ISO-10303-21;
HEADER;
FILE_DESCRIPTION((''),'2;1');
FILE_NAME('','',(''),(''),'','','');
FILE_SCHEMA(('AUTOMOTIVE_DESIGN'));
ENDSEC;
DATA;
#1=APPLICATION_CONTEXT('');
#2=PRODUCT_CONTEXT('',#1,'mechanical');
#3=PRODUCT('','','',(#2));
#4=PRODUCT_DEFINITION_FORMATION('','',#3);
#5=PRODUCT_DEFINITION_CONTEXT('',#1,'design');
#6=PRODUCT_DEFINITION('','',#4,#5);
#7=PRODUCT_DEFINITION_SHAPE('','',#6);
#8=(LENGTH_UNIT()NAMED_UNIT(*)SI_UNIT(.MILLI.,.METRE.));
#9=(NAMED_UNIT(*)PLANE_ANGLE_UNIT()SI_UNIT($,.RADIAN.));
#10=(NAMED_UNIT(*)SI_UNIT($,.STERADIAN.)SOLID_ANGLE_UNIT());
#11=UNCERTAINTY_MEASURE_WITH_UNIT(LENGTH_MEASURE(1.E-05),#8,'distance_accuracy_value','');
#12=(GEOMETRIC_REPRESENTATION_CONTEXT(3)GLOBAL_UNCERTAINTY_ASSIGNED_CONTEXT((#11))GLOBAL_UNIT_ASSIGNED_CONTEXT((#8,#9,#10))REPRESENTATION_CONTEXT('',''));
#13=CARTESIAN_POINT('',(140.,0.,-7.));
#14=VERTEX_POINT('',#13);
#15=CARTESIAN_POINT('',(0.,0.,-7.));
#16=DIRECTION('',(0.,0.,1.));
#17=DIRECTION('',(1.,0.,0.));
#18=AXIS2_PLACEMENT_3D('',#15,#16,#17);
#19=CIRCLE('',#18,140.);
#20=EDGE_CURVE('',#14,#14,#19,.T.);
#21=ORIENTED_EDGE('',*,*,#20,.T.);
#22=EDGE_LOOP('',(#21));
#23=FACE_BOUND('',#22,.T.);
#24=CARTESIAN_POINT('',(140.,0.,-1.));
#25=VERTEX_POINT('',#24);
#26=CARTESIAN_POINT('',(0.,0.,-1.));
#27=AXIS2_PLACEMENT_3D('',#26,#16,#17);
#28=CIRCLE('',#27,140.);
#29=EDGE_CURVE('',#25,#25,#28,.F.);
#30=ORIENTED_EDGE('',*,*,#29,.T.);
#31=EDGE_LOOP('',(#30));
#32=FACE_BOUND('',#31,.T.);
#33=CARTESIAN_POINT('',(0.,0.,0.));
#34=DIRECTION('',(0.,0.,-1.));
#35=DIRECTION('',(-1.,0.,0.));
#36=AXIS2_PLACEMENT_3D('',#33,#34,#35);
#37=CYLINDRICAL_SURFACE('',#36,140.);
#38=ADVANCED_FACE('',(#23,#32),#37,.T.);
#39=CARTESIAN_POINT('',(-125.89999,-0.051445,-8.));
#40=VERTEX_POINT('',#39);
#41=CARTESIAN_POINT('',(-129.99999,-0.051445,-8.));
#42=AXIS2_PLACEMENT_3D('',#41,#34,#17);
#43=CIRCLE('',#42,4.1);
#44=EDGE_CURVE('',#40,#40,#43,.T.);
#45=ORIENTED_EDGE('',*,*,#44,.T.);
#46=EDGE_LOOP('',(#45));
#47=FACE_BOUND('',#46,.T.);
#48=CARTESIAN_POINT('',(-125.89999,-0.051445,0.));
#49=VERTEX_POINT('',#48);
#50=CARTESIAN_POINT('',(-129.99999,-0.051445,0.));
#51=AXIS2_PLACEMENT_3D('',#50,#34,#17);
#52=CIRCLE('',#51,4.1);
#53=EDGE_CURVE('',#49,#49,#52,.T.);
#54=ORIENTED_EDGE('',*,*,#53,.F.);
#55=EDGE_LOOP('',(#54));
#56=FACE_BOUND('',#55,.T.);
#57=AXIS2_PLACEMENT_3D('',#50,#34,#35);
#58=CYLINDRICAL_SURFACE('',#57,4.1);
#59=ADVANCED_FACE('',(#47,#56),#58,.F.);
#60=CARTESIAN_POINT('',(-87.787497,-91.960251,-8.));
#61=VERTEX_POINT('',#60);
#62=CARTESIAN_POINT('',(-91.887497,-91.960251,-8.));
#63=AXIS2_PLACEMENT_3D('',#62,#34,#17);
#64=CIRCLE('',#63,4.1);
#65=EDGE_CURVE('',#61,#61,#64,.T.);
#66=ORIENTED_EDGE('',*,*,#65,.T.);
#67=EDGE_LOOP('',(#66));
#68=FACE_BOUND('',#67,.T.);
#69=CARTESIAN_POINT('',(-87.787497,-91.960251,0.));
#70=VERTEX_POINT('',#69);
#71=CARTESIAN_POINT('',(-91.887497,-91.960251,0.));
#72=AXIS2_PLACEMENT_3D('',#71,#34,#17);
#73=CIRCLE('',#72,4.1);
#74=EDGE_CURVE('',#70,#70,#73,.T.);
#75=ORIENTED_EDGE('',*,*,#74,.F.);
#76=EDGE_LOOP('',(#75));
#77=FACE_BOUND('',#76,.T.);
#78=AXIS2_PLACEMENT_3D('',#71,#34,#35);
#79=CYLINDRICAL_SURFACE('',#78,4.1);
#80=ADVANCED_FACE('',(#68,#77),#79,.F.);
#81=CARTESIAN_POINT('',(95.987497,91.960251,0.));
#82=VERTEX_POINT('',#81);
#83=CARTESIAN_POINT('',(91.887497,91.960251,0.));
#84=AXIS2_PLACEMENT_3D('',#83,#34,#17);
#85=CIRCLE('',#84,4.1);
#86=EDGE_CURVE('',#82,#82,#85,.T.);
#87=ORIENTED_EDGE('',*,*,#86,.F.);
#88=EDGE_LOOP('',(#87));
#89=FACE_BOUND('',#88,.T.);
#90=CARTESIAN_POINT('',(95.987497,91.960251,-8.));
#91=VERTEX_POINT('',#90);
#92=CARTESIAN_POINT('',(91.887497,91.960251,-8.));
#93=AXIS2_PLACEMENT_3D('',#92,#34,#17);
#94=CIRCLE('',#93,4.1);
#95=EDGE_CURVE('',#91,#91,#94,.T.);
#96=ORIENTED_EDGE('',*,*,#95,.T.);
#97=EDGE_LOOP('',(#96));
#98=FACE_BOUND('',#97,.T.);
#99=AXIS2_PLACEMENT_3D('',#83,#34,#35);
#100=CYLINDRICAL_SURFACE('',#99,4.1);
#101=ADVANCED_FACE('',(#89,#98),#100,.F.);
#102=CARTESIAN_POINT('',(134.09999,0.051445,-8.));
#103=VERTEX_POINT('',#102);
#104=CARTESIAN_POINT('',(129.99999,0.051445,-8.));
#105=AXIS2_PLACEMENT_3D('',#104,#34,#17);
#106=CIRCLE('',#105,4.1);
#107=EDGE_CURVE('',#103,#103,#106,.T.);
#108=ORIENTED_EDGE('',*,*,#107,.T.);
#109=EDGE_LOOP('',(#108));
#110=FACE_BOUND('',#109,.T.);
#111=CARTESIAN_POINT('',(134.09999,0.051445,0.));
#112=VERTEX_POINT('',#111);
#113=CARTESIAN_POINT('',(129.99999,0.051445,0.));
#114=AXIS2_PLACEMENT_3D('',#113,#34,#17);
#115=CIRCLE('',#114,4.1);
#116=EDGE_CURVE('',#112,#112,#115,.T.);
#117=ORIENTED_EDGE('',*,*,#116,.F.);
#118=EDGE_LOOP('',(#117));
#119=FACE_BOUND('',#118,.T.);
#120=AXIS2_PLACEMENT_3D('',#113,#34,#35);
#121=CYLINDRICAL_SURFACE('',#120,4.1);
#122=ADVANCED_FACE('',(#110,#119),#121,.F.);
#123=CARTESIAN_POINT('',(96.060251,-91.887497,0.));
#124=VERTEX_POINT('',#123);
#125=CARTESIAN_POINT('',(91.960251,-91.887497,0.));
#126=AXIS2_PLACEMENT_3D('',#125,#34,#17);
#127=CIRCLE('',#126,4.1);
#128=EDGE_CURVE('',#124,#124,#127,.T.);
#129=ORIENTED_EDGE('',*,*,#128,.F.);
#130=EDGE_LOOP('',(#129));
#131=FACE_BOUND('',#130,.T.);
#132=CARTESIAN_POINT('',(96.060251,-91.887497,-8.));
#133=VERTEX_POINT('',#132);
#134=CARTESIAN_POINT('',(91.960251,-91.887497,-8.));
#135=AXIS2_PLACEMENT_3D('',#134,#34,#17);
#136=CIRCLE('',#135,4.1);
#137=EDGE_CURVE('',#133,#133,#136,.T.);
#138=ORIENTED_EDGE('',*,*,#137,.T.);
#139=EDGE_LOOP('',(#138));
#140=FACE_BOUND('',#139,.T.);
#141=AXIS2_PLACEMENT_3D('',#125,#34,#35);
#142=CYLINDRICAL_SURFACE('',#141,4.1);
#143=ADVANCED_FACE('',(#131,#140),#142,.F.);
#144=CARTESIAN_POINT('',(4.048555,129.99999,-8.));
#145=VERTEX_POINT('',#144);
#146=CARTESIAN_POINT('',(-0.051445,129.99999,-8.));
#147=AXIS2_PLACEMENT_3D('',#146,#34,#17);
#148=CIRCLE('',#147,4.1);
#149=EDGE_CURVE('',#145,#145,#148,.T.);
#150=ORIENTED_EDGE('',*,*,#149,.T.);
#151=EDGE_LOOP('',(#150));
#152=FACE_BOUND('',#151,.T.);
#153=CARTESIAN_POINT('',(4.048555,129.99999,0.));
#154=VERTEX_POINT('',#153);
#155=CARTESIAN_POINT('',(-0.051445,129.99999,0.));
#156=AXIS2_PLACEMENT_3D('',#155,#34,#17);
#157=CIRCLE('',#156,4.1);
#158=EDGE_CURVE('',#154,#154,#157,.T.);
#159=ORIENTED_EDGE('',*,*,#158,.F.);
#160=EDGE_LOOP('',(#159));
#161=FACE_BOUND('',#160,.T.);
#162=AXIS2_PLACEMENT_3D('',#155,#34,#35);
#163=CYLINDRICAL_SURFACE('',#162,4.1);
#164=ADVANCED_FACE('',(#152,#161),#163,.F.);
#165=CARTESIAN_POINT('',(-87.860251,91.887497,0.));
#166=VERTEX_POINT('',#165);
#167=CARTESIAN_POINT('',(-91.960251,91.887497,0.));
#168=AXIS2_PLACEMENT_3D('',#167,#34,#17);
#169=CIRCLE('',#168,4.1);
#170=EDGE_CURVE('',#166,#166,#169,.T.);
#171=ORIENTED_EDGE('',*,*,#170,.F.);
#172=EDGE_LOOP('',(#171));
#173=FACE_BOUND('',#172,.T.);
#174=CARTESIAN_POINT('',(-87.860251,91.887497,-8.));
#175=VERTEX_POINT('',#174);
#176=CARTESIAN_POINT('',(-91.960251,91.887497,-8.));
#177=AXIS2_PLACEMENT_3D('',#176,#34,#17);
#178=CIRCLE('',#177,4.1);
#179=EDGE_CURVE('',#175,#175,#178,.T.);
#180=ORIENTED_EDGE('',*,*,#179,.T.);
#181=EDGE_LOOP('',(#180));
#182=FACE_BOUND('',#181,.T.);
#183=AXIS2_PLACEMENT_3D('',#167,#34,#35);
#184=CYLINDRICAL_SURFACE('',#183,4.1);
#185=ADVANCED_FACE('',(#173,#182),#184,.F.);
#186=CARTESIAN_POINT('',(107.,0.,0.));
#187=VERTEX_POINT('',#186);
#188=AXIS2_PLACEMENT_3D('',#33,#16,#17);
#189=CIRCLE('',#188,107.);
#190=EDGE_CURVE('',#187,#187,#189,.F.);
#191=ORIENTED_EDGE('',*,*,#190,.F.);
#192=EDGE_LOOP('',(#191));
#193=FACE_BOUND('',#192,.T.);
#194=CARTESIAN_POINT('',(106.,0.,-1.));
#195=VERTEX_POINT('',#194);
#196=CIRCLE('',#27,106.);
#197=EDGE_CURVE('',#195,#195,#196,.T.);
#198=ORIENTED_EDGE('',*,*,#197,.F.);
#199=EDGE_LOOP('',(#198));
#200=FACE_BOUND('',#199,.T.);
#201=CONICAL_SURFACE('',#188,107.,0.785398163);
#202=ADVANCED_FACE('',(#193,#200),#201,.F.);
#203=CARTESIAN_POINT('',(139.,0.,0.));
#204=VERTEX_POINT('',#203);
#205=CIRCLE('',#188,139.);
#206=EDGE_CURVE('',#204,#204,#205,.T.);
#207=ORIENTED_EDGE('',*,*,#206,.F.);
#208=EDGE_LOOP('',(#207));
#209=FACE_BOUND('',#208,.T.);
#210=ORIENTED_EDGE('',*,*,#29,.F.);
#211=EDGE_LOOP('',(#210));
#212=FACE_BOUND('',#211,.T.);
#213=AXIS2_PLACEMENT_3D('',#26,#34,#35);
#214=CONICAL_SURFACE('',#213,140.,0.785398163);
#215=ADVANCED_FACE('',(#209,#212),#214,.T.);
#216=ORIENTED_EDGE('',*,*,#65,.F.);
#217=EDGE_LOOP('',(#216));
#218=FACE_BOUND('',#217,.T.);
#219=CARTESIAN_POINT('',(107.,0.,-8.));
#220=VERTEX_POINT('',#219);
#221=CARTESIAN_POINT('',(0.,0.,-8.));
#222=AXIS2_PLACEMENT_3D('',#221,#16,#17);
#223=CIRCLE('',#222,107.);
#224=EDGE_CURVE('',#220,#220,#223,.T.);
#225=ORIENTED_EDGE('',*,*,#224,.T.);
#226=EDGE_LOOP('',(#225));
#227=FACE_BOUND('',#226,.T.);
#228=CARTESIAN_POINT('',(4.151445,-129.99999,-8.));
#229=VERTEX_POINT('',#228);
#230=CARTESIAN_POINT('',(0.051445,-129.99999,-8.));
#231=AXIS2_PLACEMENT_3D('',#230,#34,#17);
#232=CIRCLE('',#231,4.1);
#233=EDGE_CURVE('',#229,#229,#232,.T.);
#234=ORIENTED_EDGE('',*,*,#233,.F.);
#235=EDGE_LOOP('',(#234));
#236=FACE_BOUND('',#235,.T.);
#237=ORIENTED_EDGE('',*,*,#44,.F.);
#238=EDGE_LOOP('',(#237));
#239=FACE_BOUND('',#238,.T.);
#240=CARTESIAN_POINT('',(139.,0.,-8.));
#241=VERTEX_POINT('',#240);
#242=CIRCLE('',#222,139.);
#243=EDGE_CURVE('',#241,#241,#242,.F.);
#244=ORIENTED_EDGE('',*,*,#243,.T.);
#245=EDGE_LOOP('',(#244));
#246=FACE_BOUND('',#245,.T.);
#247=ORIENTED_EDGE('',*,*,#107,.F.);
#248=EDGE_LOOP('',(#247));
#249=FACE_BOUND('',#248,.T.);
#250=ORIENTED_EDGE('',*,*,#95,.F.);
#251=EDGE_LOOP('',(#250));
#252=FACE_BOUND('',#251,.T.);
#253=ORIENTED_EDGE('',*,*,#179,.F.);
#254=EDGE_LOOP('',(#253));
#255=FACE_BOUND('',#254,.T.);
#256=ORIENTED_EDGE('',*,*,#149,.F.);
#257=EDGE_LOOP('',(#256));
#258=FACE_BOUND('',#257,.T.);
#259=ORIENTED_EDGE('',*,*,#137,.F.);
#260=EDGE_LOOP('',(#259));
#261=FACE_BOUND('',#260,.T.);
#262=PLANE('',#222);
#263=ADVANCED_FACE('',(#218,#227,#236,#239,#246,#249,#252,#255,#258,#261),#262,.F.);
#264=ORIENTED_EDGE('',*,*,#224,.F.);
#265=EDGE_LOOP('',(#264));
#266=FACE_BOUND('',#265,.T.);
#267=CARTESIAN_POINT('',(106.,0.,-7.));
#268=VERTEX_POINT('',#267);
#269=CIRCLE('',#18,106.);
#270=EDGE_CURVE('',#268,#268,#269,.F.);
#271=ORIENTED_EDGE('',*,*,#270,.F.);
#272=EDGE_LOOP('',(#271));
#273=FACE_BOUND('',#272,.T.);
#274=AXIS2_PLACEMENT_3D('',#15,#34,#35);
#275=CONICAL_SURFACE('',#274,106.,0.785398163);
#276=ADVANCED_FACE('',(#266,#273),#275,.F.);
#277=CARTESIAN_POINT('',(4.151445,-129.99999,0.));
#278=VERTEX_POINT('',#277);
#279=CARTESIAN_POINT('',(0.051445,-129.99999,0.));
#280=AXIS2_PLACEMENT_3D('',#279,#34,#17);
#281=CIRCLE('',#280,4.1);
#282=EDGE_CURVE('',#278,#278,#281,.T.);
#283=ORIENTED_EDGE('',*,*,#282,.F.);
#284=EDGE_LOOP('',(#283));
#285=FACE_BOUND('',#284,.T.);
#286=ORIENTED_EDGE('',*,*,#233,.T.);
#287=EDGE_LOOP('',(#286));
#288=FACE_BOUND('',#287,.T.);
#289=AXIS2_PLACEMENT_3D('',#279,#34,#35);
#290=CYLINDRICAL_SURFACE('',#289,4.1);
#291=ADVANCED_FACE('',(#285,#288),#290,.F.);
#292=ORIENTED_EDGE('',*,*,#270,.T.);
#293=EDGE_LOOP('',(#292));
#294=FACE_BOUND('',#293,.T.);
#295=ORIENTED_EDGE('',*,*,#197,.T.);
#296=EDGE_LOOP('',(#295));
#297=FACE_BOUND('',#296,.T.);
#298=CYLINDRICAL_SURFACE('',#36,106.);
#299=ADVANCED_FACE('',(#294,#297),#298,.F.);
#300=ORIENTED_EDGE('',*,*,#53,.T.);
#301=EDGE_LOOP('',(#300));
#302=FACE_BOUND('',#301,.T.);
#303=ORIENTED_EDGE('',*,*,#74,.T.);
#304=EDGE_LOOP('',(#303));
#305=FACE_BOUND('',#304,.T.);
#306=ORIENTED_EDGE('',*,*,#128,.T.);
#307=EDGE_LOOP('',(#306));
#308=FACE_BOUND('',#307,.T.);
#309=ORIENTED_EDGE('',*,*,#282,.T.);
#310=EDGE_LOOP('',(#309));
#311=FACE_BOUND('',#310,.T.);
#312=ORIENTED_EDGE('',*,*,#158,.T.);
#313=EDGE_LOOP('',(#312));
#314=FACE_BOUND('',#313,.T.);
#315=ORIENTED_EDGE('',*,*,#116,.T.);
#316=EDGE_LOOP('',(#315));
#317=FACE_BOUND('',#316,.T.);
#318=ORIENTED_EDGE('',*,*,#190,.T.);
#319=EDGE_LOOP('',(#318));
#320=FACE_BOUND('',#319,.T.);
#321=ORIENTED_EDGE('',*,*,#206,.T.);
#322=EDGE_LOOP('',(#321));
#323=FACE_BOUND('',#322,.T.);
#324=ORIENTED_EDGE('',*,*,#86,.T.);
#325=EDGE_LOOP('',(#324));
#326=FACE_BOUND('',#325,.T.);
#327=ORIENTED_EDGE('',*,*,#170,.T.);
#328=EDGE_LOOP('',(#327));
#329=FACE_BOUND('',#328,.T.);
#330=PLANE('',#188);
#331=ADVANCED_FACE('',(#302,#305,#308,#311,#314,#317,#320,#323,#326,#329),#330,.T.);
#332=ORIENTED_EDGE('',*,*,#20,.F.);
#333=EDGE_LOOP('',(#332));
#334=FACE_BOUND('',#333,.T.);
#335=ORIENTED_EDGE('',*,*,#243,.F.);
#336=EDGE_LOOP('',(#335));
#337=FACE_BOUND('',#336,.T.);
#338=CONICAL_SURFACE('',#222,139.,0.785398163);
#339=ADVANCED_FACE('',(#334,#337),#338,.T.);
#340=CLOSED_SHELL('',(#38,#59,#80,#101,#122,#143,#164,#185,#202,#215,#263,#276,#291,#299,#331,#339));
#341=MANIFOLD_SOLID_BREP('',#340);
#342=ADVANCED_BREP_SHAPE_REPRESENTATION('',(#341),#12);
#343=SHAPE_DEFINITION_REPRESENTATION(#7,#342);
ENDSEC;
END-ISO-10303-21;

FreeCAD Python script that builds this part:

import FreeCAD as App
import Part
import Sketcher
from FreeCAD import Vector


def edges_at(feature, points):
    """Names of the edges that pass closest to the given points."""
    edges = feature.Shape.Edges
    near = lambda p: min(range(len(edges)), key=lambda i: edges[i].distToShape(Part.Vertex(*p))[0])
    return sorted({f"Edge{near(p) + 1}" for p in points})

doc = App.newDocument("Part")
body = doc.addObject("PartDesign::Body", "Body")

# Sketch on XY plane
sketch1 = body.newObject("Sketcher::SketchObject", "Sketch")
sketch1.AttachmentSupport = (doc.getObject("XY_Plane"), [""])
sketch1.MapMode = "FlatFace"
sketch1.AttachmentOffset = App.Placement(Vector(0, 0, -8), App.Rotation())
sketch1.addGeometry([
    Part.Circle(Vector(0, 0, 0), Vector(0, 0, 1), 140),  # 0
    Part.Circle(Vector(-92, 91.9, 0), Vector(0, 0, 1), 4.1),  # 1
    Part.Circle(Vector(-0.1, 130, 0), Vector(0, 0, 1), 4.1),  # 2
    Part.Circle(Vector(91.9, 92, 0), Vector(0, 0, 1), 4.1),  # 3
    Part.Circle(Vector(130, 0.1, 0), Vector(0, 0, 1), 4.1),  # 4
    Part.Circle(Vector(-130, -0.1, 0), Vector(0, 0, 1), 4.1),  # 5
    Part.Circle(Vector(-91.9, -92, 0), Vector(0, 0, 1), 4.1),  # 6
    Part.Circle(Vector(0, 0, 0), Vector(0, 0, 1), 106),  # 7
    Part.Circle(Vector(0.1, -130, 0), Vector(0, 0, 1), 4.1),  # 8
    Part.Circle(Vector(92, -91.9, 0), Vector(0, 0, 1), 4.1),  # 9
], False)
sketch1.addConstraint([
    Sketcher.Constraint("Coincident", 0, 3, -1, 1),
    Sketcher.Constraint("Coincident", 7, 3, -1, 1),
    Sketcher.Constraint("Equal", 1, 2),
    Sketcher.Constraint("Equal", 2, 3),
    Sketcher.Constraint("Equal", 3, 4),
    Sketcher.Constraint("Equal", 4, 5),
    Sketcher.Constraint("Equal", 5, 6),
    Sketcher.Constraint("Equal", 6, 8),
    Sketcher.Constraint("Equal", 8, 9),
    Sketcher.Constraint("Symmetric", 4, 3, 5, 3, -1, 1),
    Sketcher.Constraint("Symmetric", 3, 3, 6, 3, -1, 1),
    Sketcher.Constraint("Symmetric", 2, 3, 8, 3, -1, 1),
    Sketcher.Constraint("Symmetric", 1, 3, 9, 3, -1, 1),
    Sketcher.Constraint("Diameter", 0, 280.0),
    Sketcher.Constraint("Diameter", 7, 212.0),
    Sketcher.Constraint("Diameter", 1, 8.2),
    Sketcher.Constraint("DistanceX", 1, 3, -1, 1, 91.960251),
    Sketcher.Constraint("DistanceY", -1, 1, 2, 3, 129.99999),
    Sketcher.Constraint("DistanceY", -1, 1, 3, 3, 91.960251),
    Sketcher.Constraint("DistanceX", -1, 1, 4, 3, 129.99999),
    Sketcher.Constraint("DistanceX", 1, 3, 3, 3, 183.847749),
    Sketcher.Constraint("DistanceY", 5, 3, 4, 3, 0.102889),
    Sketcher.Constraint("DistanceY", 6, 3, 1, 3, 183.847749),
    Sketcher.Constraint("DistanceX", 2, 3, -1, 1, 0.051445),
])
pad1 = body.newObject("PartDesign::Pad", "Pad")
pad1.Profile = sketch1
pad1.Length = 8
doc.recompute()

chamfer = body.newObject("PartDesign::Chamfer", "Chamfer")
chamfer.Base = (pad1, edges_at(pad1, [
    (-140, 0, -8),
    (-106, 0, 0),
    (-106, 0, -8),
    (-140, 0, 0),
]))
chamfer.Size = 1

doc.recompute()
